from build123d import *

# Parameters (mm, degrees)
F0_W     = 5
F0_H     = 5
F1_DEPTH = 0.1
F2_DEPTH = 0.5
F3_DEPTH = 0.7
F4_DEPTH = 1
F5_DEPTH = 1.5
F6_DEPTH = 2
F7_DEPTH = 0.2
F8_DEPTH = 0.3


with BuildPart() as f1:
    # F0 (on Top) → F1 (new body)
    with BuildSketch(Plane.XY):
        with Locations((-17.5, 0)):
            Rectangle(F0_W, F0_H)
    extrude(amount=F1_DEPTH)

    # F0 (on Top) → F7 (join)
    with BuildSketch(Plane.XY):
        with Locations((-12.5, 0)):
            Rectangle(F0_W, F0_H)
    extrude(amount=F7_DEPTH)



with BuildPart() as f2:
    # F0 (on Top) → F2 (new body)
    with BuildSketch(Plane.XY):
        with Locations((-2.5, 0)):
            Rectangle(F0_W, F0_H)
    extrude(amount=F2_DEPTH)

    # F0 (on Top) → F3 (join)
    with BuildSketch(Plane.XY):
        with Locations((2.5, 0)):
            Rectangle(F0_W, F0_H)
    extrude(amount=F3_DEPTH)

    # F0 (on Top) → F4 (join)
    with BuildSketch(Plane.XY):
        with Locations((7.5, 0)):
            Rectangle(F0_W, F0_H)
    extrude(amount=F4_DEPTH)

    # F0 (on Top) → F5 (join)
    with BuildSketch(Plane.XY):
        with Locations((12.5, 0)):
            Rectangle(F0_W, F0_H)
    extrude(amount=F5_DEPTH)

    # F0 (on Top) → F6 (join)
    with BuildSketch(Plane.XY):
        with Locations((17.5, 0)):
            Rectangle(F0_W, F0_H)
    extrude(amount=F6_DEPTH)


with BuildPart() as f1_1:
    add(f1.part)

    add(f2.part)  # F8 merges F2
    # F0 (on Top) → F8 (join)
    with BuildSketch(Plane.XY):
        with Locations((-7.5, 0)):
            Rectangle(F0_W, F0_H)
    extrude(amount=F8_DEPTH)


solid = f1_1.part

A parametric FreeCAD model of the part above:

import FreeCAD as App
import Part
import Sketcher
Q = App.Units.Quantity

doc = App.newDocument("Part")
body = doc.addObject("PartDesign::Body", "Body")

sketch1 = doc.addObject("Sketcher::SketchObject", "Sketch")
body.addObject(sketch1)
sketch1.AttachmentSupport = (doc.XY_Plane, [""])
sketch1.MapMode = "FlatFace"
sketch1.addGeometry([
    Part.LineSegment(App.Vector(-20, 2.5, 0), App.Vector(-20, -2.5, 0)),
    Part.LineSegment(App.Vector(-20, -2.5, 0), App.Vector(-15, -2.5, 0)),
    Part.LineSegment(App.Vector(-15, -2.5, 0), App.Vector(-15, 2.5, 0)),
    Part.LineSegment(App.Vector(-15, 2.5, 0), App.Vector(-20, 2.5, 0)),
], False)
sketch1.addConstraint([
    Sketcher.Constraint("Coincident", 0, 2, 1, 1),
    Sketcher.Constraint("Coincident", 1, 2, 2, 1),
    Sketcher.Constraint("Coincident", 2, 2, 3, 1),
    Sketcher.Constraint("Coincident", 3, 2, 0, 1),
    Sketcher.Constraint("Vertical", 0),
    Sketcher.Constraint("Horizontal", 1),
    Sketcher.Constraint("Vertical", 2),
    Sketcher.Constraint("Horizontal", 3),
    Sketcher.Constraint("Equal", 3, 0),
    Sketcher.Constraint("DistanceX", 1, 1, 1, 2, Q("5 mm")),
    Sketcher.Constraint("DistanceX", 0, 2, -1, 1, Q("20 mm")),
    Sketcher.Constraint("DistanceY", 0, 2, -1, 1, Q("2.5 mm")),
])
pad1 = doc.addObject("PartDesign::Pad", "Pad")
body.addObject(pad1)
pad1.Profile = sketch1
pad1.Length = 0.1

sketch2 = doc.addObject("Sketcher::SketchObject", "Sketch001")
body.addObject(sketch2)
sketch2.AttachmentSupport = (doc.XY_Plane, [""])
sketch2.MapMode = "FlatFace"
sketch2.addGeometry([
    Part.LineSegment(App.Vector(-15, 2.5, 0), App.Vector(-15, -2.5, 0)),
    Part.LineSegment(App.Vector(-15, -2.5, 0), App.Vector(-10, -2.5, 0)),
    Part.LineSegment(App.Vector(-10, -2.5, 0), App.Vector(-10, 2.5, 0)),
    Part.LineSegment(App.Vector(-10, 2.5, 0), App.Vector(-15, 2.5, 0)),
], False)
sketch2.addConstraint([
    Sketcher.Constraint("Coincident", 0, 2, 1, 1),
    Sketcher.Constraint("Coincident", 1, 2, 2, 1),
    Sketcher.Constraint("Coincident", 2, 2, 3, 1),
    Sketcher.Constraint("Coincident", 3, 2, 0, 1),
    Sketcher.Constraint("Vertical", 0),
    Sketcher.Constraint("Horizontal", 1),
    Sketcher.Constraint("Vertical", 2),
    Sketcher.Constraint("Horizontal", 3),
    Sketcher.Constraint("Equal", 3, 0),
    Sketcher.Constraint("DistanceX", 1, 1, 1, 2, Q("5 mm")),
    Sketcher.Constraint("DistanceX", 0, 2, -1, 1, Q("15 mm")),
    Sketcher.Constraint("DistanceY", 0, 2, -1, 1, Q("2.5 mm")),
])
pad2 = doc.addObject("PartDesign::Pad", "Pad001")
body.addObject(pad2)
pad2.Profile = sketch2
pad2.Length = 0.2
body2 = doc.addObject("PartDesign::Body", "Body001")

sketch3 = doc.addObject("Sketcher::SketchObject", "Sketch002")
body2.addObject(sketch3)
sketch3.AttachmentSupport = (doc.getObject("XY_Plane001"), [""])
sketch3.MapMode = "FlatFace"
sketch3.addGeometry([
    Part.LineSegment(App.Vector(-5, 2.5, 0), App.Vector(-5, -2.5, 0)),
    Part.LineSegment(App.Vector(-5, -2.5, 0), App.Vector(0, -2.5, 0)),
    Part.LineSegment(App.Vector(0, -2.5, 0), App.Vector(0, 2.5, 0)),
    Part.LineSegment(App.Vector(0, 2.5, 0), App.Vector(-5, 2.5, 0)),
], False)
sketch3.addConstraint([
    Sketcher.Constraint("Coincident", 0, 2, 1, 1),
    Sketcher.Constraint("Coincident", 1, 2, 2, 1),
    Sketcher.Constraint("Coincident", 2, 2, 3, 1),
    Sketcher.Constraint("Coincident", 3, 2, 0, 1),
    Sketcher.Constraint("Vertical", 0),
    Sketcher.Constraint("Horizontal", 1),
    Sketcher.Constraint("Vertical", 2),
    Sketcher.Constraint("Horizontal", 3),
    Sketcher.Constraint("Symmetric", 1, 2, 2, 2, -1, 1),
    Sketcher.Constraint("Equal", 3, 0),
    Sketcher.Constraint("DistanceX", 1, 1, 1, 2, Q("5 mm")),
])
pad3 = doc.addObject("PartDesign::Pad", "Pad002")
body2.addObject(pad3)
pad3.Profile = sketch3
pad3.Length = 0.5

sketch4 = doc.addObject("Sketcher::SketchObject", "Sketch003")
body2.addObject(sketch4)
sketch4.AttachmentSupport = (doc.getObject("XY_Plane001"), [""])
sketch4.MapMode = "FlatFace"
sketch4.addGeometry([
    Part.LineSegment(App.Vector(0, 2.5, 0), App.Vector(0, -2.5, 0)),
    Part.LineSegment(App.Vector(0, -2.5, 0), App.Vector(5, -2.5, 0)),
    Part.LineSegment(App.Vector(5, -2.5, 0), App.Vector(5, 2.5, 0)),
    Part.LineSegment(App.Vector(5, 2.5, 0), App.Vector(0, 2.5, 0)),
], False)
sketch4.addConstraint([
    Sketcher.Constraint("Coincident", 0, 2, 1, 1),
    Sketcher.Constraint("Coincident", 1, 2, 2, 1),
    Sketcher.Constraint("Coincident", 2, 2, 3, 1),
    Sketcher.Constraint("Coincident", 3, 2, 0, 1),
    Sketcher.Constraint("Vertical", 0),
    Sketcher.Constraint("Horizontal", 1),
    Sketcher.Constraint("Vertical", 2),
    Sketcher.Constraint("Horizontal", 3),
    Sketcher.Constraint("Symmetric", 0, 2, 3, 2, -1, 1),
    Sketcher.Constraint("Equal", 3, 0),
    Sketcher.Constraint("DistanceX", 1, 1, 1, 2, Q("5 mm")),
])
pad4 = doc.addObject("PartDesign::Pad", "Pad003")
body2.addObject(pad4)
pad4.Profile = sketch4
pad4.Length = 0.7

sketch5 = doc.addObject("Sketcher::SketchObject", "Sketch004")
body2.addObject(sketch5)
sketch5.AttachmentSupport = (doc.getObject("XY_Plane001"), [""])
sketch5.MapMode = "FlatFace"
sketch5.addGeometry([
    Part.LineSegment(App.Vector(5, 2.5, 0), App.Vector(5, -2.5, 0)),
    Part.LineSegment(App.Vector(5, -2.5, 0), App.Vector(10, -2.5, 0)),
    Part.LineSegment(App.Vector(10, -2.5, 0), App.Vector(10, 2.5, 0)),
    Part.LineSegment(App.Vector(10, 2.5, 0), App.Vector(5, 2.5, 0)),
], False)
sketch5.addConstraint([
    Sketcher.Constraint("Coincident", 0, 2, 1, 1),
    Sketcher.Constraint("Coincident", 1, 2, 2, 1),
    Sketcher.Constraint("Coincident", 2, 2, 3, 1),
    Sketcher.Constraint("Coincident", 3, 2, 0, 1),
    Sketcher.Constraint("Vertical", 0),
    Sketcher.Constraint("Horizontal", 1),
    Sketcher.Constraint("Vertical", 2),
    Sketcher.Constraint("Horizontal", 3),
    Sketcher.Constraint("Equal", 3, 0),
    Sketcher.Constraint("DistanceX", 1, 1, 1, 2, Q("5 mm")),
    Sketcher.Constraint("DistanceX", -1, 1, 0, 2, Q("5 mm")),
    Sketcher.Constraint("DistanceY", 0, 2, -1, 1, Q("2.5 mm")),
])
pad5 = doc.addObject("PartDesign::Pad", "Pad004")
body2.addObject(pad5)
pad5.Profile = sketch5
pad5.Length = 1

sketch6 = doc.addObject("Sketcher::SketchObject", "Sketch005")
body2.addObject(sketch6)
sketch6.AttachmentSupport = (doc.getObject("XY_Plane001"), [""])
sketch6.MapMode = "FlatFace"
sketch6.addGeometry([
    Part.LineSegment(App.Vector(10, 2.5, 0), App.Vector(10, -2.5, 0)),
    Part.LineSegment(App.Vector(10, -2.5, 0), App.Vector(15, -2.5, 0)),
    Part.LineSegment(App.Vector(15, -2.5, 0), App.Vector(15, 2.5, 0)),
    Part.LineSegment(App.Vector(15, 2.5, 0), App.Vector(10, 2.5, 0)),
], False)
sketch6.addConstraint([
    Sketcher.Constraint("Coincident", 0, 2, 1, 1),
    Sketcher.Constraint("Coincident", 1, 2, 2, 1),
    Sketcher.Constraint("Coincident", 2, 2, 3, 1),
    Sketcher.Constraint("Coincident", 3, 2, 0, 1),
    Sketcher.Constraint("Vertical", 0),
    Sketcher.Constraint("Horizontal", 1),
    Sketcher.Constraint("Vertical", 2),
    Sketcher.Constraint("Horizontal", 3),
    Sketcher.Constraint("Equal", 3, 0),
    Sketcher.Constraint("DistanceX", 1, 1, 1, 2, Q("5 mm")),
    Sketcher.Constraint("DistanceX", -1, 1, 0, 2, Q("10 mm")),
    Sketcher.Constraint("DistanceY", 0, 2, -1, 1, Q("2.5 mm")),
])
pad6 = doc.addObject("PartDesign::Pad", "Pad005")
body2.addObject(pad6)
pad6.Profile = sketch6
pad6.Length = 1.5

sketch7 = doc.addObject("Sketcher::SketchObject", "Sketch006")
body2.addObject(sketch7)
sketch7.AttachmentSupport = (doc.getObject("XY_Plane001"), [""])
sketch7.MapMode = "FlatFace"
sketch7.addGeometry([
    Part.LineSegment(App.Vector(15, 2.5, 0), App.Vector(15, -2.5, 0)),
    Part.LineSegment(App.Vector(15, -2.5, 0), App.Vector(20, -2.5, 0)),
    Part.LineSegment(App.Vector(20, -2.5, 0), App.Vector(20, 2.5, 0)),
    Part.LineSegment(App.Vector(20, 2.5, 0), App.Vector(15, 2.5, 0)),
], False)
sketch7.addConstraint([
    Sketcher.Constraint("Coincident", 0, 2, 1, 1),
    Sketcher.Constraint("Coincident", 1, 2, 2, 1),
    Sketcher.Constraint("Coincident", 2, 2, 3, 1),
    Sketcher.Constraint("Coincident", 3, 2, 0, 1),
    Sketcher.Constraint("Vertical", 0),
    Sketcher.Constraint("Horizontal", 1),
    Sketcher.Constraint("Vertical", 2),
    Sketcher.Constraint("Horizontal", 3),
    Sketcher.Constraint("Equal", 3, 0),
    Sketcher.Constraint("DistanceX", 1, 1, 1, 2, Q("5 mm")),
    Sketcher.Constraint("DistanceX", -1, 1, 0, 2, Q("15 mm")),
    Sketcher.Constraint("DistanceY", 0, 2, -1, 1, Q("2.5 mm")),
])
pad7 = doc.addObject("PartDesign::Pad", "Pad006")
body2.addObject(pad7)
pad7.Profile = sketch7
pad7.Length = 2
body.AllowCompound = True
doc.recompute()

boolean = doc.addObject("PartDesign::Boolean", "Boolean")
body.addObject(boolean)
boolean.Type = "Fuse"
boolean.addObjects([body2])

sketch8 = doc.addObject("Sketcher::SketchObject", "Sketch007")
body.addObject(sketch8)
sketch8.AttachmentSupport = (doc.XY_Plane, [""])
sketch8.MapMode = "FlatFace"
sketch8.addGeometry([
    Part.LineSegment(App.Vector(-10, 2.5, 0), App.Vector(-10, -2.5, 0)),
    Part.LineSegment(App.Vector(-10, -2.5, 0), App.Vector(-5, -2.5, 0)),
    Part.LineSegment(App.Vector(-5, -2.5, 0), App.Vector(-5, 2.5, 0)),
    Part.LineSegment(App.Vector(-5, 2.5, 0), App.Vector(-10, 2.5, 0)),
], False)
sketch8.addConstraint([
    Sketcher.Constraint("Coincident", 0, 2, 1, 1),
    Sketcher.Constraint("Coincident", 1, 2, 2, 1),
    Sketcher.Constraint("Coincident", 2, 2, 3, 1),
    Sketcher.Constraint("Coincident", 3, 2, 0, 1),
    Sketcher.Constraint("Vertical", 0),
    Sketcher.Constraint("Horizontal", 1),
    Sketcher.Constraint("Vertical", 2),
    Sketcher.Constraint("Horizontal", 3),
    Sketcher.Constraint("Equal", 3, 0),
    Sketcher.Constraint("DistanceX", 1, 1, 1, 2, Q("5 mm")),
    Sketcher.Constraint("DistanceX", 0, 2, -1, 1, Q("10 mm")),
    Sketcher.Constraint("DistanceY", 0, 2, -1, 1, Q("2.5 mm")),
])
pad8 = doc.addObject("PartDesign::Pad", "Pad007")
body.addObject(pad8)
pad8.Profile = sketch8
pad8.Length = 0.3

doc.recompute()
